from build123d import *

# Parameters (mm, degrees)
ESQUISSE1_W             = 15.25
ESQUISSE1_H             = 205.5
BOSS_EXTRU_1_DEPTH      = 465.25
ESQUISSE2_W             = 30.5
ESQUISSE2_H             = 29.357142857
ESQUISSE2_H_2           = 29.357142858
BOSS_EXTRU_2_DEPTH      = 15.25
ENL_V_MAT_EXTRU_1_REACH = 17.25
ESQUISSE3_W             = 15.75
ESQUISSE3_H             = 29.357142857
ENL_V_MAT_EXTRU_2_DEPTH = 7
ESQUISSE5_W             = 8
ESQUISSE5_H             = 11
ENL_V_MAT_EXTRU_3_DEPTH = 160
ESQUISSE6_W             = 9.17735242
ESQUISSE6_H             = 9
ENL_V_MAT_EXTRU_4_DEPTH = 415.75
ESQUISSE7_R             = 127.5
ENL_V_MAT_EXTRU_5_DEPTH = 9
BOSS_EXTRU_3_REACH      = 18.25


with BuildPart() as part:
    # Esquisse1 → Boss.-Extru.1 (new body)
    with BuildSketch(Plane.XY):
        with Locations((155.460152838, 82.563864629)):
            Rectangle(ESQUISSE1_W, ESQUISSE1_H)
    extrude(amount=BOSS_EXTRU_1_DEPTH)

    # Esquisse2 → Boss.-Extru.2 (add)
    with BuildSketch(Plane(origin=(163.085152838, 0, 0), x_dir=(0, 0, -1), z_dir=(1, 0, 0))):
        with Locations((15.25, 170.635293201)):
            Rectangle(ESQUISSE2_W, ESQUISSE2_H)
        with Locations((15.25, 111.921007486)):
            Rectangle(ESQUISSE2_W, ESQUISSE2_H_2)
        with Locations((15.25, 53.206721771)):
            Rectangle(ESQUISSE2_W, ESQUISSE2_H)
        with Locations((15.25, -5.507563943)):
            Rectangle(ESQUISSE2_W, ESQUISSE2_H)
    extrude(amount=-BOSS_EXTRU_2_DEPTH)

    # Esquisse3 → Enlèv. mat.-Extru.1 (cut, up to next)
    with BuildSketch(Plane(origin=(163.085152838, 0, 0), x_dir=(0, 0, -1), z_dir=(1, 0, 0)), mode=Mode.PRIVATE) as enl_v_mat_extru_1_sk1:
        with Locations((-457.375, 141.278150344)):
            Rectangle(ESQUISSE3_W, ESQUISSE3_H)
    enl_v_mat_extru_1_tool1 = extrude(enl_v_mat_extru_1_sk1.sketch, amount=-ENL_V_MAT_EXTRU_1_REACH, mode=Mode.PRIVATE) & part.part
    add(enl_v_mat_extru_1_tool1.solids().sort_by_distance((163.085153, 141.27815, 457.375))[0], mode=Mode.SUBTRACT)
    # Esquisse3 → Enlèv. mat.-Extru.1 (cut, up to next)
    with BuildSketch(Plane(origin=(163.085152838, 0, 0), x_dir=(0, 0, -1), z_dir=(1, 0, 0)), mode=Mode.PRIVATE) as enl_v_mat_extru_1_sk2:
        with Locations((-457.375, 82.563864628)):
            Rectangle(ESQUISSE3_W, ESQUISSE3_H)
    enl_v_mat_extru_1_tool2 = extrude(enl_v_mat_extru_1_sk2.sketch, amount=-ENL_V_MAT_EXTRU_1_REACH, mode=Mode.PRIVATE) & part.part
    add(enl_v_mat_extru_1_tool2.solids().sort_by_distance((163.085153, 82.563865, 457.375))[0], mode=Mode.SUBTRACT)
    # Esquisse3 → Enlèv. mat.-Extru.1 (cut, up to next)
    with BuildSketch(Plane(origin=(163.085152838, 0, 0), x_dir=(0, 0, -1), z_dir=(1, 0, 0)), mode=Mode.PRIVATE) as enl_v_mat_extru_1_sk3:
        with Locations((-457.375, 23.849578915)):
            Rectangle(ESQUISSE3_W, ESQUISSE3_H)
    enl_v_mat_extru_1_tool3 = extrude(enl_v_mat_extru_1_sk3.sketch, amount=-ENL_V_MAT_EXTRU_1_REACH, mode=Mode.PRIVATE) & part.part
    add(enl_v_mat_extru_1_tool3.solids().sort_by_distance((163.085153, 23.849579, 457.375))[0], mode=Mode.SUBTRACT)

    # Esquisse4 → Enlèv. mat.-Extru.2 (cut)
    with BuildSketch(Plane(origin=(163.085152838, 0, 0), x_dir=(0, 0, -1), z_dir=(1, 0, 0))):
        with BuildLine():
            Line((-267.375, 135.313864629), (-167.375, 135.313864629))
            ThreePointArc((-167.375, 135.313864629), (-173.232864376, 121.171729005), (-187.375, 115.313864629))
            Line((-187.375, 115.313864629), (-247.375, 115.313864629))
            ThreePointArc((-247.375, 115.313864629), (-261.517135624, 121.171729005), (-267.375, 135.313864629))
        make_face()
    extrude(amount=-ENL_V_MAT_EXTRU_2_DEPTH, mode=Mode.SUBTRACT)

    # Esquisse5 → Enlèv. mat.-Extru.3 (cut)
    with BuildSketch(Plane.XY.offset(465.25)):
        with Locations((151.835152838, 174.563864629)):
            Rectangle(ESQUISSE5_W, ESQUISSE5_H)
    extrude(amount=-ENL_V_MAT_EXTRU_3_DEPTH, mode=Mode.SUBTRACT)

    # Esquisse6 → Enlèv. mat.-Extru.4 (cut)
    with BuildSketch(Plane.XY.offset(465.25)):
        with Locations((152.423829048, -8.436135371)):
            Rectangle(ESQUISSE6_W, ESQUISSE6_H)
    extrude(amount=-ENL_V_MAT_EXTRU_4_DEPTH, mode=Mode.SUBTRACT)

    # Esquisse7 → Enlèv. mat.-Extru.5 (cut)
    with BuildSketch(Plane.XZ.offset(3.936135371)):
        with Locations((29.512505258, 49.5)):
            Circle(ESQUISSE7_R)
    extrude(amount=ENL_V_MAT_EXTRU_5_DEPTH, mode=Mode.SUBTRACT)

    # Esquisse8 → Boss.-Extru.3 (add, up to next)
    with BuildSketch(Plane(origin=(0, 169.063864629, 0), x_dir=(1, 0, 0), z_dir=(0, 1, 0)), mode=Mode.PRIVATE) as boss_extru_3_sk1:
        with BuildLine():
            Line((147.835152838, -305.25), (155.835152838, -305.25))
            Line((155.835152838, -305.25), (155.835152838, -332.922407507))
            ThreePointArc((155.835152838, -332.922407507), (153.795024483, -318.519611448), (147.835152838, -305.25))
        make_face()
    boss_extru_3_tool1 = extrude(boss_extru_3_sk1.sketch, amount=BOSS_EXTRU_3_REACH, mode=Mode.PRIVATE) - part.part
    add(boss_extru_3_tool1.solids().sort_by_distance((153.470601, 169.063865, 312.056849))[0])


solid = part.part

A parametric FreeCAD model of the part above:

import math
import FreeCAD as App
import Part
import Sketcher
from FreeCAD import Vector


def add_polygon(sketch, points):
    """Adds a closed chain of lines whose ends are joined by coincident constraints."""
    first, n = sketch.GeometryCount, len(points)
    for a, b in zip(points, points[1:] + points[:1]):
        sketch.addGeometry(Part.LineSegment(App.Vector(*a, 0), App.Vector(*b, 0)), False)
    for i in range(n):
        sketch.addConstraint(Sketcher.Constraint("Coincident", first + i, 2, first + (i + 1) % n, 1))

doc = App.newDocument("Part")
body = doc.addObject("PartDesign::Body", "Body")

sketch1 = doc.addObject("Sketcher::SketchObject", "Sketch")
body.addObject(sketch1)
sketch1.AttachmentSupport = (doc.XY_Plane, [""])
sketch1.MapMode = "FlatFace"
add_polygon(sketch1, [(147.835153, 185.313865), (147.835153, -20.186135), (163.085153, -20.186135), (163.085153, 185.313865)])
sketch1.addConstraint([
    Sketcher.Constraint("Vertical", 0),
    Sketcher.Constraint("Horizontal", 1),
    Sketcher.Constraint("Vertical", 2),
    Sketcher.Constraint("Horizontal", 3),
    Sketcher.Constraint("DistanceY", 0, 2, 0, 1, 205.5),
    Sketcher.Constraint("DistanceX", 1, 1, 1, 2, 15.25),
    Sketcher.Constraint("DistanceX", -1, 1, 0, 2, 147.835153),
    Sketcher.Constraint("DistanceY", 0, 2, -1, 1, 20.186135),
])
pad1 = doc.addObject("PartDesign::Pad", "Pad")
body.addObject(pad1)
pad1.Profile = sketch1
pad1.Length = 465.25

sketch2 = doc.addObject("Sketcher::SketchObject", "Sketch001")
body.addObject(sketch2)
sketch2.AttachmentSupport = (doc.YZ_Plane, [""])
sketch2.MapMode = "FlatFace"
sketch2.AttachmentOffset = App.Placement(Vector(0, 0, 163.085153), App.Rotation())
add_polygon(sketch2, [(185.313865, 0), (155.956722, 0), (155.956722, -30.5), (185.313865, -30.5)])
add_polygon(sketch2, [(126.599579, 0), (97.242436, 0), (97.242436, -30.5), (126.599579, -30.5)])
add_polygon(sketch2, [(67.885293, 0), (38.52815, 0), (38.52815, -30.5), (67.885293, -30.5)])
add_polygon(sketch2, [(9.171007, 0), (-20.186135, 0), (-20.186135, -30.5), (9.171007, -30.5)])
sketch2.addConstraint([
    Sketcher.Constraint("Horizontal", 0),
    Sketcher.Constraint("Vertical", 1),
    Sketcher.Constraint("Horizontal", 2),
    Sketcher.Constraint("Vertical", 3),
    Sketcher.Constraint("Horizontal", 4),
    Sketcher.Constraint("Vertical", 5),
    Sketcher.Constraint("Horizontal", 6),
    Sketcher.Constraint("Vertical", 7),
    Sketcher.Constraint("Horizontal", 8),
    Sketcher.Constraint("Vertical", 9),
    Sketcher.Constraint("Horizontal", 10),
    Sketcher.Constraint("Vertical", 11),
    Sketcher.Constraint("Horizontal", 12),
    Sketcher.Constraint("Vertical", 13),
    Sketcher.Constraint("Horizontal", 14),
    Sketcher.Constraint("Vertical", 15),
    Sketcher.Constraint("PointOnObject", 0, 2, -1),
    Sketcher.Constraint("PointOnObject", 4, 2, -1),
    Sketcher.Constraint("PointOnObject", 8, 2, -1),
    Sketcher.Constraint("PointOnObject", 12, 2, -1),
    Sketcher.Constraint("Horizontal", 2, 2, 5, 2),
    Sketcher.Constraint("Horizontal", 6, 2, 9, 2),
    Sketcher.Constraint("Horizontal", 10, 2, 13, 2),
    Sketcher.Constraint("Equal", 2, 4),
    Sketcher.Constraint("Equal", 6, 8),
    Sketcher.Constraint("Equal", 10, 12),
    Sketcher.Constraint("DistanceY", 1, 2, 1, 1, 30.5),
    Sketcher.Constraint("DistanceX", 0, 2, 0, 1, 29.357143),
    Sketcher.Constraint("DistanceX", -1, 1, 0, 2, 155.956722),
    Sketcher.Constraint("DistanceX", -1, 1, 6, 2, 126.599579),
    Sketcher.Constraint("DistanceX", -1, 1, 8, 2, 38.52815),
    Sketcher.Constraint("DistanceX", 12, 2, 11, 2, 88.071429),
])
pad2 = doc.addObject("PartDesign::Pad", "Pad001")
body.addObject(pad2)
pad2.Profile = sketch2
pad2.Length = 15.25
pad2.Reversed = True

sketch3 = doc.addObject("Sketcher::SketchObject", "Sketch002")
body.addObject(sketch3)
sketch3.AttachmentSupport = (doc.YZ_Plane, [""])
sketch3.MapMode = "FlatFace"
sketch3.AttachmentOffset = App.Placement(Vector(0, 0, 163.085153), App.Rotation())
add_polygon(sketch3, [(155.956722, 465.25), (126.599579, 465.25), (126.599579, 449.5), (155.956722, 449.5)])
sketch3.addConstraint([
    Sketcher.Constraint("Horizontal", 0),
    Sketcher.Constraint("Vertical", 1),
    Sketcher.Constraint("Horizontal", 2),
    Sketcher.Constraint("Vertical", 3),
    Sketcher.Constraint("DistanceY", 1, 2, 1, 1, 15.75),
    Sketcher.Constraint("DistanceY", -1, 1, 1, 2, 449.5),
    Sketcher.Constraint("DistanceX", 0, 2, 0, 1, 29.357143),
    Sketcher.Constraint("DistanceX", -1, 1, 0, 2, 126.599579),
])
pocket1 = doc.addObject("PartDesign::Pocket", "Pocket")
body.addObject(pocket1)
pocket1.Profile = sketch3
pocket1.Type = "UpToFirst"

sketch4 = doc.addObject("Sketcher::SketchObject", "Sketch003")
body.addObject(sketch4)
sketch4.AttachmentSupport = (doc.YZ_Plane, [""])
sketch4.MapMode = "FlatFace"
sketch4.AttachmentOffset = App.Placement(Vector(0, 0, 163.085153), App.Rotation())
add_polygon(sketch4, [(97.242436, 465.25), (67.885293, 465.25), (67.885293, 449.5), (97.242436, 449.5)])
sketch4.addConstraint([
    Sketcher.Constraint("Horizontal", 0),
    Sketcher.Constraint("Vertical", 1),
    Sketcher.Constraint("Horizontal", 2),
    Sketcher.Constraint("Vertical", 3),
    Sketcher.Constraint("DistanceY", 1, 2, 1, 1, 15.75),
    Sketcher.Constraint("DistanceY", -1, 1, 1, 2, 449.5),
    Sketcher.Constraint("DistanceX", 0, 2, 0, 1, 29.357143),
    Sketcher.Constraint("DistanceX", -1, 1, 0, 2, 67.885293),
])
pocket2 = doc.addObject("PartDesign::Pocket", "Pocket001")
body.addObject(pocket2)
pocket2.Profile = sketch4
pocket2.Type = "UpToFirst"

sketch5 = doc.addObject("Sketcher::SketchObject", "Sketch004")
body.addObject(sketch5)
sketch5.AttachmentSupport = (doc.YZ_Plane, [""])
sketch5.MapMode = "FlatFace"
sketch5.AttachmentOffset = App.Placement(Vector(0, 0, 163.085153), App.Rotation())
add_polygon(sketch5, [(38.52815, 465.25), (9.171007, 465.25), (9.171007, 449.5), (38.52815, 449.5)])
sketch5.addConstraint([
    Sketcher.Constraint("Horizontal", 0),
    Sketcher.Constraint("Vertical", 1),
    Sketcher.Constraint("Horizontal", 2),
    Sketcher.Constraint("Vertical", 3),
    Sketcher.Constraint("DistanceY", 1, 2, 1, 1, 15.75),
    Sketcher.Constraint("DistanceY", -1, 1, 1, 2, 449.5),
    Sketcher.Constraint("DistanceX", 0, 2, 0, 1, 29.357143),
    Sketcher.Constraint("DistanceX", -1, 1, 2, 2, 38.52815),
])
pocket3 = doc.addObject("PartDesign::Pocket", "Pocket002")
body.addObject(pocket3)
pocket3.Profile = sketch5
pocket3.Type = "UpToFirst"

sketch6 = doc.addObject("Sketcher::SketchObject", "Sketch005")
body.addObject(sketch6)
sketch6.AttachmentSupport = (doc.YZ_Plane, [""])
sketch6.MapMode = "FlatFace"
sketch6.AttachmentOffset = App.Placement(Vector(0, 0, 163.085153), App.Rotation())
sketch6.addGeometry([
    Part.LineSegment(Vector(135.313865, 167.375, 0), Vector(135.313865, 267.375, 0)),
    Part.ArcOfCircle(Part.Circle(Vector(135.313865, 247.375, 0), Vector(0, 0, 1), 20), math.radians(90), math.radians(180)),
    Part.LineSegment(Vector(115.313865, 247.375, 0), Vector(115.313865, 187.375, 0)),
    Part.ArcOfCircle(Part.Circle(Vector(135.313865, 187.375, 0), Vector(0, 0, 1), 20), math.radians(180), math.radians(270)),
], False)
sketch6.addConstraint([
    Sketcher.Constraint("Coincident", 0, 2, 1, 1),
    Sketcher.Constraint("Tangent", 1, 2, 2, 1),
    Sketcher.Constraint("Tangent", 2, 2, 3, 1),
    Sketcher.Constraint("Coincident", 3, 2, 0, 1),
    Sketcher.Constraint("Vertical", 0),
    Sketcher.Constraint("Vertical", 2),
    Sketcher.Constraint("Equal", 1, 3),
    Sketcher.Constraint("Vertical", 3, 3, 0, 2),
    Sketcher.Constraint("Radius", 1, 20.0),
    Sketcher.Constraint("DistanceY", 0, 1, 0, 2, 100.0),
    Sketcher.Constraint("DistanceY", -1, 1, 1, 3, 247.375),
    Sketcher.Constraint("DistanceX", -1, 1, 1, 3, 135.313865),
])
pocket4 = doc.addObject("PartDesign::Pocket", "Pocket003")
body.addObject(pocket4)
pocket4.Profile = sketch6
pocket4.Length = 7

sketch7 = doc.addObject("Sketcher::SketchObject", "Sketch006")
body.addObject(sketch7)
sketch7.AttachmentSupport = (doc.XY_Plane, [""])
sketch7.MapMode = "FlatFace"
sketch7.AttachmentOffset = App.Placement(Vector(0, 0, 465.25), App.Rotation())
add_polygon(sketch7, [(147.835153, 180.063865), (147.835153, 169.063865), (155.835153, 169.063865), (155.835153, 180.063865)])
sketch7.addConstraint([
    Sketcher.Constraint("Vertical", 0),
    Sketcher.Constraint("Horizontal", 1),
    Sketcher.Constraint("Vertical", 2),
    Sketcher.Constraint("Horizontal", 3),
    Sketcher.Constraint("DistanceX", 1, 1, 1, 2, 8.0),
    Sketcher.Constraint("DistanceY", 0, 2, 0, 1, 11.0),
    Sketcher.Constraint("DistanceX", -1, 1, 0, 2, 147.835153),
    Sketcher.Constraint("DistanceY", -1, 1, 0, 2, 169.063865),
])
pocket5 = doc.addObject("PartDesign::Pocket", "Pocket004")
body.addObject(pocket5)
pocket5.Profile = sketch7
pocket5.Length = 160

sketch8 = doc.addObject("Sketcher::SketchObject", "Sketch007")
body.addObject(sketch8)
sketch8.AttachmentSupport = (doc.XY_Plane, [""])
sketch8.MapMode = "FlatFace"
sketch8.AttachmentOffset = App.Placement(Vector(0, 0, 465.25), App.Rotation())
add_polygon(sketch8, [(147.835153, -3.936135), (147.835153, -12.936135), (157.012505, -12.936135), (157.012505, -3.936135)])
sketch8.addConstraint([
    Sketcher.Constraint("Vertical", 0),
    Sketcher.Constraint("Horizontal", 1),
    Sketcher.Constraint("Vertical", 2),
    Sketcher.Constraint("Horizontal", 3),
    Sketcher.Constraint("DistanceY", 0, 2, 0, 1, 9.0),
    Sketcher.Constraint("DistanceX", 1, 1, 1, 2, 9.177352),
    Sketcher.Constraint("DistanceX", -1, 1, 0, 2, 147.835153),
    Sketcher.Constraint("DistanceY", 0, 2, -1, 1, 12.936135),
])
pocket6 = doc.addObject("PartDesign::Pocket", "Pocket005")
body.addObject(pocket6)
pocket6.Profile = sketch8
pocket6.Length = 415.75

sketch9 = doc.addObject("Sketcher::SketchObject", "Sketch008")
body.addObject(sketch9)
sketch9.AttachmentSupport = (doc.XZ_Plane, [""])
sketch9.MapMode = "FlatFace"
sketch9.AttachmentOffset = App.Placement(Vector(0, 0, 3.936135), App.Rotation())
sketch9.addGeometry(Part.Circle(Vector(29.512505, 49.5, 0), Vector(0, 0, 1), 127.5), False)
sketch9.addConstraint([
    Sketcher.Constraint("Diameter", 0, 255.0),
    Sketcher.Constraint("DistanceY", -1, 1, 0, 3, 49.5),
    Sketcher.Constraint("DistanceX", -1, 1, 0, 3, 29.512505),
])
pocket7 = doc.addObject("PartDesign::Pocket", "Pocket006")
body.addObject(pocket7)
pocket7.Profile = sketch9
pocket7.Length = 9
pocket7.Reversed = True

sketch10 = doc.addObject("Sketcher::SketchObject", "Sketch009")
body.addObject(sketch10)
sketch10.AttachmentSupport = (doc.XZ_Plane, [""])
sketch10.MapMode = "FlatFace"
sketch10.AttachmentOffset = App.Placement(Vector(0, 0, -169.063865), App.Rotation())
sketch10.addGeometry([
    Part.LineSegment(Vector(155.835153, 305.25, 0), Vector(147.835153, 305.25, 0)),
    Part.ArcOfCircle(Part.Circle(Vector(103.975019, 332.922408, 0), Vector(0, 0, 1), 51.860134), math.radians(-32.248808), math.radians(0)),
    Part.LineSegment(Vector(155.835153, 332.922408, 0), Vector(155.835153, 305.25, 0)),
], False)
sketch10.addConstraint([
    Sketcher.Constraint("Coincident", 0, 2, 1, 1),
    Sketcher.Constraint("Tangent", 1, 2, 2, 1),
    Sketcher.Constraint("Coincident", 2, 2, 0, 1),
    Sketcher.Constraint("Horizontal", 0),
    Sketcher.Constraint("Vertical", 2),
    Sketcher.Constraint("DistanceX", 0, 2, 0, 1, 8.0),
    Sketcher.Constraint("DistanceY", -1, 1, 0, 2, 305.25),
    Sketcher.Constraint("Radius", 1, 51.860134),
    Sketcher.Constraint("DistanceX", -1, 1, 1, 3, 103.975019),
])
pad3 = doc.addObject("PartDesign::Pad", "Pad002")
body.addObject(pad3)
pad3.Profile = sketch10
pad3.Type = "UpToFirst"
pad3.Reversed = True

doc.recompute()
